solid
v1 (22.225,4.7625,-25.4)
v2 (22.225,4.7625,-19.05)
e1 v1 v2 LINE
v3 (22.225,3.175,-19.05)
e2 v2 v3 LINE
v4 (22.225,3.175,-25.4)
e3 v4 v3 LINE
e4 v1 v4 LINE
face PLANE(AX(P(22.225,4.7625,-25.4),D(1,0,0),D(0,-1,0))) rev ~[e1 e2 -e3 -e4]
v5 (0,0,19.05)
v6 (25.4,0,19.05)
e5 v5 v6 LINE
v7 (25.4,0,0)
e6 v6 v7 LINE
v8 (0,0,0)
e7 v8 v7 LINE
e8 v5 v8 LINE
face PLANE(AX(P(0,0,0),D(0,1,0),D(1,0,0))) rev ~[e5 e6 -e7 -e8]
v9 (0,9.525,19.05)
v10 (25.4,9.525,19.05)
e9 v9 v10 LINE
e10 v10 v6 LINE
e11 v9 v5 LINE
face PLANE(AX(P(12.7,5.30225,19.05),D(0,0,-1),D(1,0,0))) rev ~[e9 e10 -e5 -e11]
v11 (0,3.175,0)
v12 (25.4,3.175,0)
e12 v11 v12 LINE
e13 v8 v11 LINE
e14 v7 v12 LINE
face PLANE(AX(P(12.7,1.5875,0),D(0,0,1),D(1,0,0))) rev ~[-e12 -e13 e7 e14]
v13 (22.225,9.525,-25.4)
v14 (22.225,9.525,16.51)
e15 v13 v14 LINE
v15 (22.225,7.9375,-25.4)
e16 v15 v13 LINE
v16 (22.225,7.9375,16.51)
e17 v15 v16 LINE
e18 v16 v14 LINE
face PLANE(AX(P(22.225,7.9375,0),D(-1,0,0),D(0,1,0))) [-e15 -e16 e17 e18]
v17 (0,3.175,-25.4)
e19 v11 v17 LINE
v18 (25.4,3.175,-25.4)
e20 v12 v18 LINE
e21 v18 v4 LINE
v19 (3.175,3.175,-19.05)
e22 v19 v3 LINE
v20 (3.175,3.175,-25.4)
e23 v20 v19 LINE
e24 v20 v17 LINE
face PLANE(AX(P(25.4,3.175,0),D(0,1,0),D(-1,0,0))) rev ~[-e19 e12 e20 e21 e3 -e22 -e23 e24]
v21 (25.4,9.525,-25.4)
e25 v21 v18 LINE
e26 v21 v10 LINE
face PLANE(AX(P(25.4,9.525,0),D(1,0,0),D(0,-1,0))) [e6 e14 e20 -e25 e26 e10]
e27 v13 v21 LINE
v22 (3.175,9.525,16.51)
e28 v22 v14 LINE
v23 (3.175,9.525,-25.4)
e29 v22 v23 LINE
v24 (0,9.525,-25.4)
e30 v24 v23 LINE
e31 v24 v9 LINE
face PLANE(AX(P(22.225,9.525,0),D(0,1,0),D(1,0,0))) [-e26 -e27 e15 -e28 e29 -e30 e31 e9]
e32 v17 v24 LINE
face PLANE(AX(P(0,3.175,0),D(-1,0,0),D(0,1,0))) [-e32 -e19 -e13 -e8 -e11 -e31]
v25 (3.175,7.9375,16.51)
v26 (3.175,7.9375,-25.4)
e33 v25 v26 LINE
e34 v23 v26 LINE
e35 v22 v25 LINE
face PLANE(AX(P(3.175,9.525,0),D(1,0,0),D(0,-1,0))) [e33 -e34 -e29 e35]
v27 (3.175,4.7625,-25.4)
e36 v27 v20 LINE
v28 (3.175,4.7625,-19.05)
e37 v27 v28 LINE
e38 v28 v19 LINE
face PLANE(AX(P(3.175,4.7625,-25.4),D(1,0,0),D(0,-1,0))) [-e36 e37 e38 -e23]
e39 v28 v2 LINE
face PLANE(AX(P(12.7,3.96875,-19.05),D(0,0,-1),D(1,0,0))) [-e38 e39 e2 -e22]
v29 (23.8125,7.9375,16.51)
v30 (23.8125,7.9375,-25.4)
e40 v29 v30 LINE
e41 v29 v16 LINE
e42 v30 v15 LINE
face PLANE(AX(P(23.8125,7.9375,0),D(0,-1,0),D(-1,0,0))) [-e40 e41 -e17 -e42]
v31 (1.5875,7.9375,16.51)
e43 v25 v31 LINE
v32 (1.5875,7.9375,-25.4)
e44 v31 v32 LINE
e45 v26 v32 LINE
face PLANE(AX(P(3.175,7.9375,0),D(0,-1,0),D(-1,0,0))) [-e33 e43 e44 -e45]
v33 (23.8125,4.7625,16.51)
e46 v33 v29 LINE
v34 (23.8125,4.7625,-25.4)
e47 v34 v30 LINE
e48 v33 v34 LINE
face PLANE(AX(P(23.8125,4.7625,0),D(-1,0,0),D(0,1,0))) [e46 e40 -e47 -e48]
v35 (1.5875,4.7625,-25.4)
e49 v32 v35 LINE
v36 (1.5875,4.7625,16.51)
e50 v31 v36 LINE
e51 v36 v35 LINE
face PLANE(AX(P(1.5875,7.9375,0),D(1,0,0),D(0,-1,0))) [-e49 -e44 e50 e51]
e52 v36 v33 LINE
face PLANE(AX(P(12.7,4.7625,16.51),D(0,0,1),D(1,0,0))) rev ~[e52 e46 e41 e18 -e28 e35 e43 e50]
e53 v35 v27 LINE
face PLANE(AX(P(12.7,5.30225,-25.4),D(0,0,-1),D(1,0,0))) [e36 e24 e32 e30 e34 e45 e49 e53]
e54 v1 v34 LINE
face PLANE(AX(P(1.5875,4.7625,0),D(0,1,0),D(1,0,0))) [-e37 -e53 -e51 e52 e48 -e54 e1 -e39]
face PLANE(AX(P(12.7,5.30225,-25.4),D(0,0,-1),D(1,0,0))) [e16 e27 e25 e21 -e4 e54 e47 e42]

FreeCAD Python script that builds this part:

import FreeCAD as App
import Part
import Sketcher
Q = App.Units.Quantity

doc = App.newDocument("Part")
body = doc.addObject("PartDesign::Body", "Body")

sketch1 = body.newObject("Sketcher::SketchObject", "Sketch")
sketch1.AttachmentSupport = (doc.getObject("XY_Plane"), [""])
sketch1.MapMode = "FlatFace"
sketch1.addGeometry([
    Part.LineSegment(App.Vector(0, 3.175, 0), App.Vector(0, 0, 0)),
    Part.LineSegment(App.Vector(0, 0, 0), App.Vector(25.4, 0, 0)),
    Part.LineSegment(App.Vector(25.4, 0, 0), App.Vector(25.4, 3.175, 0)),
    Part.LineSegment(App.Vector(25.4, 3.175, 0), App.Vector(0, 3.175, 0)),
], False)
sketch1.addConstraint([
    Sketcher.Constraint("Coincident", 0, 2, 1, 1),
    Sketcher.Constraint("Coincident", 1, 2, 2, 1),
    Sketcher.Constraint("Coincident", 2, 2, 3, 1),
    Sketcher.Constraint("Coincident", 3, 2, 0, 1),
    Sketcher.Constraint("Vertical", 0),
    Sketcher.Constraint("Horizontal", 1),
    Sketcher.Constraint("Vertical", 2),
    Sketcher.Constraint("Horizontal", 3),
    Sketcher.Constraint("Coincident", 0, 2, -1, 1),
    Sketcher.Constraint("DistanceX", 1, 1, 1, 2, Q("1 in")),
    Sketcher.Constraint("DistanceY", 0, 2, 0, 1, Q("0.125 in")),
])
pad1 = body.newObject("PartDesign::Pad", "Pad")
pad1.Profile = sketch1
pad1.Length = Q("0.75 in")

sketch2 = body.newObject("Sketcher::SketchObject", "Sketch001")
sketch2.AttachmentSupport = (doc.getObject("XY_Plane"), [""])
sketch2.MapMode = "FlatFace"
sketch2.addGeometry([
    Part.LineSegment(App.Vector(25.4, 9.525, 0), App.Vector(25.4, 3.175, 0)),
    Part.LineSegment(App.Vector(25.4, 3.175, 0), App.Vector(0, 3.175, 0)),
    Part.LineSegment(App.Vector(0, 3.175, 0), App.Vector(0, 9.525, 0)),
    Part.LineSegment(App.Vector(0, 9.525, 0), App.Vector(3.175, 9.525, 0)),
    Part.LineSegment(App.Vector(3.175, 9.525, 0), App.Vector(3.175, 7.9375, 0)),
    Part.LineSegment(App.Vector(3.175, 7.9375, 0), App.Vector(1.5875, 7.9375, 0)),
    Part.LineSegment(App.Vector(1.5875, 7.9375, 0), App.Vector(1.5875, 4.7625, 0)),
    Part.LineSegment(App.Vector(1.5875, 4.7625, 0), App.Vector(23.8125, 4.7625, 0)),
    Part.LineSegment(App.Vector(23.8125, 4.7625, 0), App.Vector(23.8125, 7.9375, 0)),
    Part.LineSegment(App.Vector(23.8125, 7.9375, 0), App.Vector(22.225, 7.9375, 0)),
    Part.LineSegment(App.Vector(22.225, 7.9375, 0), App.Vector(22.225, 9.525, 0)),
    Part.LineSegment(App.Vector(22.225, 9.525, 0), App.Vector(25.4, 9.525, 0)),
], False)
sketch2.addConstraint([
    Sketcher.Constraint("Coincident", 0, 2, 1, 1),
    Sketcher.Constraint("Coincident", 1, 2, 2, 1),
    Sketcher.Constraint("Coincident", 2, 2, 3, 1),
    Sketcher.Constraint("Coincident", 3, 2, 4, 1),
    Sketcher.Constraint("Coincident", 4, 2, 5, 1),
    Sketcher.Constraint("Coincident", 5, 2, 6, 1),
    Sketcher.Constraint("Coincident", 6, 2, 7, 1),
    Sketcher.Constraint("Coincident", 7, 2, 8, 1),
    Sketcher.Constraint("Coincident", 8, 2, 9, 1),
    Sketcher.Constraint("Coincident", 9, 2, 10, 1),
    Sketcher.Constraint("Coincident", 10, 2, 11, 1),
    Sketcher.Constraint("Coincident", 11, 2, 0, 1),
    Sketcher.Constraint("Vertical", 0),
    Sketcher.Constraint("Horizontal", 1),
    Sketcher.Constraint("Vertical", 2),
    Sketcher.Constraint("Horizontal", 3),
    Sketcher.Constraint("Vertical", 4),
    Sketcher.Constraint("Horizontal", 5),
    Sketcher.Constraint("Vertical", 6),
    Sketcher.Constraint("Horizontal", 7),
    Sketcher.Constraint("Vertical", 8),
    Sketcher.Constraint("Horizontal", 9),
    Sketcher.Constraint("Vertical", 10),
    Sketcher.Constraint("Horizontal", 11),
    Sketcher.Constraint("PointOnObject", 1, 2, -2),
    Sketcher.Constraint("Horizontal", 5, 2, 8, 2),
    Sketcher.Constraint("Horizontal", 3, 2, 10, 2),
    Sketcher.Constraint("Equal", 5, 9),
    Sketcher.Constraint("Equal", 3, 11),
    Sketcher.Constraint("Equal", 9, 4),
    Sketcher.Constraint("Equal", 11, 6),
    Sketcher.Constraint("DistanceX", 1, 2, 1, 1, Q("1 in")),
    Sketcher.Constraint("DistanceY", 0, 2, 0, 1, Q("0.25 in")),
    Sketcher.Constraint("DistanceX", 3, 1, 3, 2, Q("0.125 in")),
    Sketcher.Constraint("DistanceX", 5, 2, 5, 1, Q("0.0625 in")),
    Sketcher.Constraint("DistanceY", -1, 1, 0, 2, Q("0.125 in")),
])
pad2 = body.newObject("PartDesign::Pad", "Pad001")
pad2.Profile = sketch2
pad2.Type = "TwoLengths"
pad2.Length = Q("1 in")
pad2.Length2 = Q("0.75 in")
pad2.Reversed = True

sketch3 = body.newObject("Sketcher::SketchObject", "Sketch002")
sketch3.AttachmentSupport = (doc.getObject("XY_Plane"), [""])
sketch3.MapMode = "FlatFace"
sketch3.AttachmentOffset = App.Placement(App.Vector(0, 0, 0.75 * 25.4), App.Rotation())
sketch3.addGeometry([
    Part.LineSegment(App.Vector(0, 9.525, 0), App.Vector(0, 0, 0)),
    Part.LineSegment(App.Vector(0, 0, 0), App.Vector(25.4, 0, 0)),
    Part.LineSegment(App.Vector(25.4, 0, 0), App.Vector(25.4, 9.525, 0)),
    Part.LineSegment(App.Vector(25.4, 9.525, 0), App.Vector(0, 9.525, 0)),
], False)
sketch3.addConstraint([
    Sketcher.Constraint("Coincident", 0, 2, 1, 1),
    Sketcher.Constraint("Coincident", 1, 2, 2, 1),
    Sketcher.Constraint("Coincident", 2, 2, 3, 1),
    Sketcher.Constraint("Coincident", 3, 2, 0, 1),
    Sketcher.Constraint("Vertical", 0),
    Sketcher.Constraint("Horizontal", 1),
    Sketcher.Constraint("Vertical", 2),
    Sketcher.Constraint("Horizontal", 3),
    Sketcher.Constraint("Coincident", 0, 2, -1, 1),
    Sketcher.Constraint("DistanceX", 1, 1, 1, 2, Q("1 in")),
    Sketcher.Constraint("DistanceY", 0, 2, 0, 1, Q("0.375 in")),
])
pad3 = body.newObject("PartDesign::Pad", "Pad002")
pad3.Profile = sketch3
pad3.Length = Q("0.1 in")
pad3.Reversed = True

sketch4 = body.newObject("Sketcher::SketchObject", "Sketch003")
sketch4.AttachmentSupport = (doc.getObject("XY_Plane"), [""])
sketch4.MapMode = "FlatFace"
sketch4.AttachmentOffset = App.Placement(App.Vector(0, 0, -1 * 25.4), App.Rotation())
sketch4.addGeometry([
    Part.LineSegment(App.Vector(3.175, 3.175, 0), App.Vector(3.175, 4.7625, 0)),
    Part.LineSegment(App.Vector(3.175, 4.7625, 0), App.Vector(22.225, 4.7625, 0)),
    Part.LineSegment(App.Vector(22.225, 4.7625, 0), App.Vector(22.225, 3.175, 0)),
    Part.LineSegment(App.Vector(22.225, 3.175, 0), App.Vector(3.175, 3.175, 0)),
], False)
sketch4.addConstraint([
    Sketcher.Constraint("Coincident", 0, 2, 1, 1),
    Sketcher.Constraint("Coincident", 1, 2, 2, 1),
    Sketcher.Constraint("Coincident", 2, 2, 3, 1),
    Sketcher.Constraint("Coincident", 3, 2, 0, 1),
    Sketcher.Constraint("Vertical", 0),
    Sketcher.Constraint("Horizontal", 1),
    Sketcher.Constraint("Vertical", 2),
    Sketcher.Constraint("Horizontal", 3),
    Sketcher.Constraint("DistanceX", 1, 1, 1, 2, Q("0.75 in")),
    Sketcher.Constraint("DistanceY", 0, 1, 0, 2, Q("0.0625 in")),
    Sketcher.Constraint("DistanceX", -1, 1, 0, 2, Q("0.125 in")),
    Sketcher.Constraint("DistanceY", -1, 1, 0, 2, Q("0.1875 in")),
])
pocket1 = body.newObject("PartDesign::Pocket", "Pocket")
pocket1.Profile = sketch4
pocket1.Length = Q("0.25 in")
pocket1.Reversed = True

doc.recompute()
